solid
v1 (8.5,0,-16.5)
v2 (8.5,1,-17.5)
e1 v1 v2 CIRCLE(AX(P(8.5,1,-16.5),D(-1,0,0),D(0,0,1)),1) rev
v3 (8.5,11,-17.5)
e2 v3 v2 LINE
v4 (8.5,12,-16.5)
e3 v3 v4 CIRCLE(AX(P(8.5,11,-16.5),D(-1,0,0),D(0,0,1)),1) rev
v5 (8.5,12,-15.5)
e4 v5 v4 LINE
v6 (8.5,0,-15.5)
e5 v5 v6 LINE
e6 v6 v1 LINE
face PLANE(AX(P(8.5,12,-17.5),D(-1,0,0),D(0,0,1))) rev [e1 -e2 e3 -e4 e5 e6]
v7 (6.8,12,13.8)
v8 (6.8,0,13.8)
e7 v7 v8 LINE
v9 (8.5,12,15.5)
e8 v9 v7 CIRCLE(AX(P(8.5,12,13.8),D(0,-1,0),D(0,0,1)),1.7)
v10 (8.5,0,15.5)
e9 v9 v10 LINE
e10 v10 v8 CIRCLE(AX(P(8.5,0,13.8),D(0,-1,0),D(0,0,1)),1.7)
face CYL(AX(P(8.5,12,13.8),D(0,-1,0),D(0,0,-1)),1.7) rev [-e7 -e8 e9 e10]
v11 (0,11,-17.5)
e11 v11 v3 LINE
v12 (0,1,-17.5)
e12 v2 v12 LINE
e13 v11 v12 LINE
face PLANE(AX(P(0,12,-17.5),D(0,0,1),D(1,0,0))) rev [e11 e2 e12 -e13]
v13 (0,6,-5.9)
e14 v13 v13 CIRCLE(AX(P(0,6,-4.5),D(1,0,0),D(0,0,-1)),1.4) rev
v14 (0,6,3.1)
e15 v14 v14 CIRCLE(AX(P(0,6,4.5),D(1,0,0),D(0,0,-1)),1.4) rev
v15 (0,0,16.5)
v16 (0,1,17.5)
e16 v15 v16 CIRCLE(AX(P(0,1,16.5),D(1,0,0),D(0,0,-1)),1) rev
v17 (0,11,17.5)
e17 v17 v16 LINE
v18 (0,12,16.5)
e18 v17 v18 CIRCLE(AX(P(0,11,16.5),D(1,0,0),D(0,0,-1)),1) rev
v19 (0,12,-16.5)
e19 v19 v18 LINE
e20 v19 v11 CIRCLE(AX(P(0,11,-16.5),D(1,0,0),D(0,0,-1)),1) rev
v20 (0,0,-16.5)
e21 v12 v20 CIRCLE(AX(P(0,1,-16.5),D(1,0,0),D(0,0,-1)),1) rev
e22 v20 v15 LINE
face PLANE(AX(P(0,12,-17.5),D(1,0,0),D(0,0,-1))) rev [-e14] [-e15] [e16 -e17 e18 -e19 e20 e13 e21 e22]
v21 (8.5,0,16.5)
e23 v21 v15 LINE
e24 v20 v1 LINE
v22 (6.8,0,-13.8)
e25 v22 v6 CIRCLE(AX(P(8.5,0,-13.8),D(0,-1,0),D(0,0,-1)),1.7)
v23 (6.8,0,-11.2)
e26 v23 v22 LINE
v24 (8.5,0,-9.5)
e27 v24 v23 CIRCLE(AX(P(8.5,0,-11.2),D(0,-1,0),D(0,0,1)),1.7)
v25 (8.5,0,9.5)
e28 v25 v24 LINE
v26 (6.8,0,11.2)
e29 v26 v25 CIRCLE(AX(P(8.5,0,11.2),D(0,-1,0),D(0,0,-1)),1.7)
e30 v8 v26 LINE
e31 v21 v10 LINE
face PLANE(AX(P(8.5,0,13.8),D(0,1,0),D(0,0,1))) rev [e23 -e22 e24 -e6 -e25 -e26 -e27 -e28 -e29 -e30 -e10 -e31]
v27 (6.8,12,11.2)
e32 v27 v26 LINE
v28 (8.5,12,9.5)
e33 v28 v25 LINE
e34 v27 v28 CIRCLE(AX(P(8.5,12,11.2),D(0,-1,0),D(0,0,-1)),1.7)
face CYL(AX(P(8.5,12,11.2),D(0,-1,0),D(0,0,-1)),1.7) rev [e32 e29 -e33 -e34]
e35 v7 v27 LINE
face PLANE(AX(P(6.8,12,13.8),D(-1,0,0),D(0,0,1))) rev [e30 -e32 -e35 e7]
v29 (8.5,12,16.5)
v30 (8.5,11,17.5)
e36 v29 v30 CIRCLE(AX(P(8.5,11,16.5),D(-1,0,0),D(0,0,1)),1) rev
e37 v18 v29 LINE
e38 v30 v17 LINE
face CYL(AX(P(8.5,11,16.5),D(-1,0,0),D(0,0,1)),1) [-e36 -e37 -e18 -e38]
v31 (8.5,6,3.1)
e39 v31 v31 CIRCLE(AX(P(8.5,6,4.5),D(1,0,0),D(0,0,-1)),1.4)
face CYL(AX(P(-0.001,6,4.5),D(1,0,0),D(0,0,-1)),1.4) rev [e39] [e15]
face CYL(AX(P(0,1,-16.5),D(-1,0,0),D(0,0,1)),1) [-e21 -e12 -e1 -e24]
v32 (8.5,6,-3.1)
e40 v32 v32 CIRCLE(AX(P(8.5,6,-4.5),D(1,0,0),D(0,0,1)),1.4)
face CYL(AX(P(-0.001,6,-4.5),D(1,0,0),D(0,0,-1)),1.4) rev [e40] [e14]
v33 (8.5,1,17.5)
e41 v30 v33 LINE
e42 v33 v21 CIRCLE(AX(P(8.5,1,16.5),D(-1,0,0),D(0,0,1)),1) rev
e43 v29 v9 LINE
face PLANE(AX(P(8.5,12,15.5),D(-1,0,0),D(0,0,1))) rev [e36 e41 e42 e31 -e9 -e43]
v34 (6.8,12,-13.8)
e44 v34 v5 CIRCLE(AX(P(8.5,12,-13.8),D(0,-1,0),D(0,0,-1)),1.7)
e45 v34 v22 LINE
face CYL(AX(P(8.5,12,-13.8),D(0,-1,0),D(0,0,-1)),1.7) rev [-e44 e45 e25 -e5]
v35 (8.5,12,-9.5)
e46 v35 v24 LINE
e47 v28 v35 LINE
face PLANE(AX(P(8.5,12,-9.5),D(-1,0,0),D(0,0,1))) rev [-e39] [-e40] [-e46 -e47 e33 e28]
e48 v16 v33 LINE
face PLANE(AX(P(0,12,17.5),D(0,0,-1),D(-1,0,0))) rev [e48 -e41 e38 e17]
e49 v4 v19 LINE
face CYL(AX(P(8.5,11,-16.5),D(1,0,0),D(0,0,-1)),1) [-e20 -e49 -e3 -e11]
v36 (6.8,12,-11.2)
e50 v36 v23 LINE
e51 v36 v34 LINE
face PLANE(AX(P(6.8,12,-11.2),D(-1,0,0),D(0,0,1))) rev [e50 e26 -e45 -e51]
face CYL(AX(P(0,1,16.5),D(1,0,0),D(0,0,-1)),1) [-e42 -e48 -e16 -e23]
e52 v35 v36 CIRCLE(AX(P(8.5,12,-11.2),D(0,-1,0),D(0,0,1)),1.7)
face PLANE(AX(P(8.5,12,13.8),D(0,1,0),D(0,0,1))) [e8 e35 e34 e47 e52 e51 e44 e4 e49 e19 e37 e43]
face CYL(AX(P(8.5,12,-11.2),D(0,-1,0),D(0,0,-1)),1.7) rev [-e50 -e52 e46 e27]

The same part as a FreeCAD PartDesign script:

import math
import FreeCAD as App
import Part
import Sketcher

V = App.Vector


def edges_at(feature, points):
    """Names of the edges that pass closest to the given points."""
    edges = feature.Shape.Edges
    near = lambda p: min(range(len(edges)), key=lambda i: edges[i].distToShape(Part.Vertex(*p))[0])
    return sorted({f"Edge{near(p) + 1}" for p in points})

doc = App.newDocument("Part")
body = doc.addObject("PartDesign::Body", "Body")

sketch1 = doc.addObject("Sketcher::SketchObject", "Sketch")
body.addObject(sketch1)
sketch1.AttachmentSupport = (doc.XZ_Plane, [""])
sketch1.MapMode = "FlatFace"
sketch1.addGeometry([
    Part.LineSegment(V(8.5, -15.5, 0), V(8.5, -17.5, 0)),
    Part.LineSegment(V(8.5, -17.5, 0), V(0, -17.5, 0)),
    Part.LineSegment(V(0, -17.5, 0), V(0, 17.5, 0)),
    Part.LineSegment(V(0, 17.5, 0), V(8.5, 17.5, 0)),
    Part.LineSegment(V(8.5, 17.5, 0), V(8.5, 15.5, 0)),
    Part.ArcOfCircle(Part.Circle(V(8.5, 13.8, 0), V(0, 0, 1), 1.7), math.radians(90), math.radians(180)),
    Part.LineSegment(V(6.8, 13.8, 0), V(6.8, 11.2, 0)),
    Part.ArcOfCircle(Part.Circle(V(8.5, 11.2, 0), V(0, 0, 1), 1.7), math.radians(180), math.radians(270)),
    Part.LineSegment(V(8.5, 9.5, 0), V(8.5, -9.5, 0)),
    Part.ArcOfCircle(Part.Circle(V(8.5, -11.2, 0), V(0, 0, 1), 1.7), math.radians(90), math.radians(180)),
    Part.LineSegment(V(6.8, -11.2, 0), V(6.8, -13.8, 0)),
    Part.ArcOfCircle(Part.Circle(V(8.5, -13.8, 0), V(0, 0, 1), 1.7), math.radians(180), math.radians(270)),
], False)
sketch1.addConstraint([
    Sketcher.Constraint("Coincident", 0, 2, 1, 1),
    Sketcher.Constraint("Coincident", 1, 2, 2, 1),
    Sketcher.Constraint("Coincident", 2, 2, 3, 1),
    Sketcher.Constraint("Coincident", 3, 2, 4, 1),
    Sketcher.Constraint("Coincident", 4, 2, 5, 1),
    Sketcher.Constraint("Tangent", 5, 2, 6, 1),
    Sketcher.Constraint("Tangent", 6, 2, 7, 1),
    Sketcher.Constraint("Coincident", 7, 2, 8, 1),
    Sketcher.Constraint("Coincident", 8, 2, 9, 1),
    Sketcher.Constraint("Tangent", 9, 2, 10, 1),
    Sketcher.Constraint("Tangent", 10, 2, 11, 1),
    Sketcher.Constraint("Coincident", 11, 2, 0, 1),
    Sketcher.Constraint("Vertical", 0),
    Sketcher.Constraint("Horizontal", 1),
    Sketcher.Constraint("Vertical", 2),
    Sketcher.Constraint("Horizontal", 3),
    Sketcher.Constraint("Vertical", 4),
    Sketcher.Constraint("Vertical", 6),
    Sketcher.Constraint("Vertical", 8),
    Sketcher.Constraint("Vertical", 10),
    Sketcher.Constraint("Equal", 5, 7),
    Sketcher.Constraint("Equal", 7, 9),
    Sketcher.Constraint("Equal", 9, 11),
    Sketcher.Constraint("Symmetric", 1, 2, 2, 2, -1, 1),
    Sketcher.Constraint("Symmetric", 7, 3, 9, 3, -1),
    Sketcher.Constraint("Symmetric", 4, 2, 11, 2, -1),
    Sketcher.Constraint("Vertical", 11, 3, 0, 2),
    Sketcher.Constraint("Vertical", 4, 2, 7, 2),
    Sketcher.Constraint("Radius", 5, 1.7),
    Sketcher.Constraint("DistanceY", 0, 2, 0, 1, 2.0),
    Sketcher.Constraint("DistanceY", 2, 1, 2, 2, 35.0),
    Sketcher.Constraint("DistanceY", 8, 2, 8, 1, 19.0),
    Sketcher.Constraint("DistanceX", 1, 2, 1, 1, 8.5),
])
pad1 = doc.addObject("PartDesign::Pad", "Pad")
body.addObject(pad1)
pad1.Profile = sketch1
pad1.Length = 12
pad1.Reversed = True

sketch2 = doc.addObject("Sketcher::SketchObject", "Sketch001")
body.addObject(sketch2)
sketch2.AttachmentSupport = (doc.YZ_Plane, [""])
sketch2.MapMode = "FlatFace"
sketch2.AttachmentOffset = App.Placement(V(0, 0, 8.5), App.Rotation())
sketch2.addGeometry(Part.Circle(V(6, 4.5, 0), V(0, 0, 1), 1.4), False)
sketch2.addConstraint([
    Sketcher.Constraint("Diameter", 0, 2.8),
    Sketcher.Constraint("DistanceX", -1, 1, 0, 3, 6.0),
    Sketcher.Constraint("DistanceY", -1, 1, 0, 3, 4.5),
])
pocket1 = doc.addObject("PartDesign::Pocket", "Pocket")
body.addObject(pocket1)
pocket1.Profile = sketch2
pocket1.Type = "UpToFirst"

sketch3 = doc.addObject("Sketcher::SketchObject", "Sketch002")
body.addObject(sketch3)
sketch3.AttachmentSupport = (doc.YZ_Plane, [""])
sketch3.MapMode = "FlatFace"
sketch3.AttachmentOffset = App.Placement(V(0, 0, 8.5), App.Rotation())
sketch3.addGeometry(Part.Circle(V(6, -4.5, 0), V(0, 0, 1), 1.4), False)
sketch3.addConstraint([
    Sketcher.Constraint("Diameter", 0, 2.8),
    Sketcher.Constraint("DistanceX", -1, 1, 0, 3, 6.0),
    Sketcher.Constraint("DistanceY", 0, 3, -1, 1, 4.5),
])
pocket2 = doc.addObject("PartDesign::Pocket", "Pocket001")
body.addObject(pocket2)
pocket2.Profile = sketch3
pocket2.Type = "UpToFirst"
doc.recompute()

fillet = doc.addObject("PartDesign::Fillet", "Fillet")
body.addObject(fillet)
fillet.Base = (pocket2, edges_at(pocket2, [
    (4.25, 0, -17.5),
    (4.25, 0, 17.5),
    (4.25, 12, -17.5),
    (4.25, 12, 17.5),
]))
fillet.Radius = 1

doc.recompute()
